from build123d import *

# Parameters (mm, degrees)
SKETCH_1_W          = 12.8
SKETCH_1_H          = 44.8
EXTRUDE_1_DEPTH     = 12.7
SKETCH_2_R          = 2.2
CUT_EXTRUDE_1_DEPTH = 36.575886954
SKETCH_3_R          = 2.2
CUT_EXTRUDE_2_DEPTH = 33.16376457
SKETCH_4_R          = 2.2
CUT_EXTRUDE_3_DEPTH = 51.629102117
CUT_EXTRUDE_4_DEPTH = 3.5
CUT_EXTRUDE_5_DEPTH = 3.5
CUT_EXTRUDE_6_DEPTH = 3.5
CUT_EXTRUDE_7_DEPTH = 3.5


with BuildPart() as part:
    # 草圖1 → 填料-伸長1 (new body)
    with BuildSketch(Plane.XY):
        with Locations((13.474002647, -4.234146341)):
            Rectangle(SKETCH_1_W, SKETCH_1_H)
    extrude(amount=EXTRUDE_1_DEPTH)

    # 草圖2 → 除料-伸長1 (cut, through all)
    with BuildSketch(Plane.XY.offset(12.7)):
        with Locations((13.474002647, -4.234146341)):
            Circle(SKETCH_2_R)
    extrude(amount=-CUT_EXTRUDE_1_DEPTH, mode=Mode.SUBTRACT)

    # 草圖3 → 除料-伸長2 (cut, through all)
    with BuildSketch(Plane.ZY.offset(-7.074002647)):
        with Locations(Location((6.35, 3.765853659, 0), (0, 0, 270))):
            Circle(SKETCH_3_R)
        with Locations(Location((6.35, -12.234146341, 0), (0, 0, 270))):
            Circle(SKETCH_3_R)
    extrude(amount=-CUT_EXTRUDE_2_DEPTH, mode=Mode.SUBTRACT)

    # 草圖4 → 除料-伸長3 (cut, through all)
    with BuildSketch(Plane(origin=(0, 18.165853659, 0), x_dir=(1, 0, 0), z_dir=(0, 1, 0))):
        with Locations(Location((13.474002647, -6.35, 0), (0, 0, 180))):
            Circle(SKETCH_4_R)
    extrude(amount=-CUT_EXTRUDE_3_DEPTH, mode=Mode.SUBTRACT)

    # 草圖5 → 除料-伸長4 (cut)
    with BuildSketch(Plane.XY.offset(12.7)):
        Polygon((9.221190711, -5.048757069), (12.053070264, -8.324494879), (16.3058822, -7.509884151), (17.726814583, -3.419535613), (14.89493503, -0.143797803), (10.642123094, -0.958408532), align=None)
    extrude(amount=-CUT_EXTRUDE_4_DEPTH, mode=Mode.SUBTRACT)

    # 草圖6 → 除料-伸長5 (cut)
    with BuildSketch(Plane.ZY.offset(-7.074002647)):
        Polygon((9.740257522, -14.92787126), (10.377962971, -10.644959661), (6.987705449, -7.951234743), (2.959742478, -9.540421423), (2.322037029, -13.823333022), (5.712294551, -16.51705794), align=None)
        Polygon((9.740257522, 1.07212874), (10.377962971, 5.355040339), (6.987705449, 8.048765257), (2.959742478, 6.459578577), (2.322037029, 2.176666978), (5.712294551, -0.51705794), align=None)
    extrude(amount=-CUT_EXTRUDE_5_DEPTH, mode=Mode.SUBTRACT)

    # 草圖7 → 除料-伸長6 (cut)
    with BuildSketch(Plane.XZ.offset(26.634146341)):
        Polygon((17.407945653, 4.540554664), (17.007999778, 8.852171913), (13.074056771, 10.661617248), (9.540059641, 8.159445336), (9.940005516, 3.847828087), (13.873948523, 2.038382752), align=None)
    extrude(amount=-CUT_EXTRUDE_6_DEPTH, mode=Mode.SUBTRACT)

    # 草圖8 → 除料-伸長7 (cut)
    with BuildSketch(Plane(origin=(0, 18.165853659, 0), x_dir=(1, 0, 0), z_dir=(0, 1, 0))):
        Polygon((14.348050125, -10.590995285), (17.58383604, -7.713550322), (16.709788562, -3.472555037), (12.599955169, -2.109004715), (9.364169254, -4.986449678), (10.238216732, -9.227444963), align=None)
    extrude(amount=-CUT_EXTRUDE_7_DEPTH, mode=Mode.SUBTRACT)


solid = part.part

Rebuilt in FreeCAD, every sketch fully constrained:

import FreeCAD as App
import Part
import Sketcher

V = App.Vector
Q = App.Units.Quantity


def add_polygon(sketch, points):
    """Adds a closed chain of lines whose ends are joined by coincident constraints."""
    first, n = sketch.GeometryCount, len(points)
    for a, b in zip(points, points[1:] + points[:1]):
        sketch.addGeometry(Part.LineSegment(App.Vector(*a, 0), App.Vector(*b, 0)), False)
    for i in range(n):
        sketch.addConstraint(Sketcher.Constraint("Coincident", first + i, 2, first + (i + 1) % n, 1))

doc = App.newDocument("Part")
body = doc.addObject("PartDesign::Body", "Body")

sketch1 = doc.addObject("Sketcher::SketchObject", "Sketch")
body.addObject(sketch1)
sketch1.AttachmentSupport = (doc.XY_Plane, [""])
sketch1.MapMode = "FlatFace"
add_polygon(sketch1, [(7, 18), (7, -27), (20, -27), (20, 18)])
sketch1.addConstraint(Sketcher.Constraint("Vertical", 0))
sketch1.addConstraint(Sketcher.Constraint("Horizontal", 1))
sketch1.addConstraint(Sketcher.Constraint("Vertical", 2))
sketch1.addConstraint(Sketcher.Constraint("Horizontal", 3))
sketch1.addConstraint(Sketcher.Constraint("DistanceX", 1, 1, 1, 2, Q("12.8 mm")))
sketch1.addConstraint(Sketcher.Constraint("DistanceY", 0, 2, 0, 1, Q("44.8 mm")))
sketch1.addConstraint(Sketcher.Constraint("DistanceX", -1, 1, 0, 2, Q("7.074003 mm")))
sketch1.addConstraint(Sketcher.Constraint("DistanceY", 0, 2, -1, 1, Q("26.634146 mm")))
pad1 = doc.addObject("PartDesign::Pad", "Pad")
body.addObject(pad1)
pad1.Profile = sketch1
pad1.Length = 12.7

sketch2 = doc.addObject("Sketcher::SketchObject", "Sketch001")
body.addObject(sketch2)
sketch2.AttachmentSupport = (doc.XY_Plane, [""])
sketch2.MapMode = "FlatFace"
sketch2.AttachmentOffset = App.Placement(V(0, 0, 12.7), App.Rotation())
sketch2.addGeometry(Part.Circle(V(13.5, -4.2, 0), V(0, 0, 1), 2.2), False)
sketch2.addConstraint(Sketcher.Constraint("Diameter", 0, Q("4.4 mm")))
sketch2.addConstraint(Sketcher.Constraint("DistanceX", -1, 1, 0, 3, Q("13.474003 mm")))
sketch2.addConstraint(Sketcher.Constraint("DistanceY", 0, 3, -1, 1, Q("4.234146 mm")))
pocket1 = doc.addObject("PartDesign::Pocket", "Pocket")
body.addObject(pocket1)
pocket1.Profile = sketch2
pocket1.Type = "ThroughAll"

sketch3 = doc.addObject("Sketcher::SketchObject", "Sketch002")
body.addObject(sketch3)
sketch3.AttachmentSupport = (doc.YZ_Plane, [""])
sketch3.MapMode = "FlatFace"
sketch3.AttachmentOffset = App.Placement(V(0, 0, 7.074003), App.Rotation())
sketch3.addGeometry(Part.Circle(V(3.8, 6.3, 0), V(0, 0, 1), 2.2), False)
sketch3.addGeometry(Part.Circle(V(-12.2, 6.3, 0), V(0, 0, 1), 2.2), False)
sketch3.addConstraint(Sketcher.Constraint("Equal", 0, 1))
sketch3.addConstraint(Sketcher.Constraint("Horizontal", 0, 3, 1, 3))
sketch3.addConstraint(Sketcher.Constraint("Diameter", 0, Q("4.4 mm")))
sketch3.addConstraint(Sketcher.Constraint("DistanceX", 1, 3, 0, 3, Q("16 mm")))
sketch3.addConstraint(Sketcher.Constraint("DistanceY", -1, 1, 0, 3, Q("6.35 mm")))
sketch3.addConstraint(Sketcher.Constraint("DistanceX", -1, 1, 0, 3, Q("3.765854 mm")))
pocket2 = doc.addObject("PartDesign::Pocket", "Pocket001")
body.addObject(pocket2)
pocket2.Profile = sketch3
pocket2.Type = "ThroughAll"
pocket2.Reversed = True

sketch4 = doc.addObject("Sketcher::SketchObject", "Sketch003")
body.addObject(sketch4)
sketch4.AttachmentSupport = (doc.XZ_Plane, [""])
sketch4.MapMode = "FlatFace"
sketch4.AttachmentOffset = App.Placement(V(0, 0, -18.165854), App.Rotation())
sketch4.addGeometry(Part.Circle(V(13.5, 6.3, 0), V(0, 0, 1), 2.2), False)
sketch4.addConstraint(Sketcher.Constraint("Diameter", 0, Q("4.4 mm")))
sketch4.addConstraint(Sketcher.Constraint("DistanceY", -1, 1, 0, 3, Q("6.35 mm")))
sketch4.addConstraint(Sketcher.Constraint("DistanceX", -1, 1, 0, 3, Q("13.474003 mm")))
pocket3 = doc.addObject("PartDesign::Pocket", "Pocket002")
body.addObject(pocket3)
pocket3.Profile = sketch4
pocket3.Type = "ThroughAll"
pocket3.Reversed = True

sketch5 = doc.addObject("Sketcher::SketchObject", "Sketch004")
body.addObject(sketch5)
sketch5.AttachmentSupport = (doc.XY_Plane, [""])
sketch5.MapMode = "FlatFace"
sketch5.AttachmentOffset = App.Placement(V(0, 0, 12.7), App.Rotation())
add_polygon(sketch5, [(9.2, -5), (12.1, -8.3), (16.3, -7.5), (17.7, -3.4), (14.9, -0.1), (10.6, -1)])
sketch5.addConstraint(Sketcher.Constraint("Parallel", 0, 3))
sketch5.addConstraint(Sketcher.Constraint("Parallel", 1, 4))
sketch5.addConstraint(Sketcher.Constraint("Parallel", 2, 5))
sketch5.addConstraint(Sketcher.Constraint("Equal", 0, 1))
sketch5.addConstraint(Sketcher.Constraint("Equal", 1, 2))
sketch5.addConstraint(Sketcher.Constraint("Equal", 2, 3))
sketch5.addConstraint(Sketcher.Constraint("DistanceX", -1, 1, 0, 2, Q("12.05307 mm")))
sketch5.addConstraint(Sketcher.Constraint("DistanceY", 4, 2, -1, 1, Q("0.958409 mm")))
sketch5.addConstraint(Sketcher.Constraint("DistanceX", -1, 1, 5, 2, Q("9.221191 mm")))
sketch5.addConstraint(Sketcher.Constraint("DistanceX", 0, 2, 1, 2, Q("4.252812 mm")))
sketch5.addConstraint(Sketcher.Constraint("DistanceY", 0, 2, 1, 2, Q("0.814611 mm")))
sketch5.addConstraint(Sketcher.Constraint("DistanceY", 1, 2, 2, 2, Q("4.090349 mm")))
pocket4 = doc.addObject("PartDesign::Pocket", "Pocket003")
body.addObject(pocket4)
pocket4.Profile = sketch5
pocket4.Length = 3.5

sketch6 = doc.addObject("Sketcher::SketchObject", "Sketch005")
body.addObject(sketch6)
sketch6.AttachmentSupport = (doc.YZ_Plane, [""])
sketch6.MapMode = "FlatFace"
sketch6.AttachmentOffset = App.Placement(V(0, 0, 7.074003), App.Rotation())
add_polygon(sketch6, [(-14.9, 9.7), (-10.6, 10.4), (-8, 7), (-9.5, 3), (-13.8, 2.3), (-16.5, 5.7)])
add_polygon(sketch6, [(1.1, 9.7), (5.4, 10.4), (8, 7), (6.5, 3), (2.2, 2.3), (-0.5, 5.7)])
sketch6.addConstraint(Sketcher.Constraint("Parallel", 0, 3))
sketch6.addConstraint(Sketcher.Constraint("Parallel", 1, 4))
sketch6.addConstraint(Sketcher.Constraint("Parallel", 2, 5))
sketch6.addConstraint(Sketcher.Constraint("Parallel", 3, 6))
sketch6.addConstraint(Sketcher.Constraint("Parallel", 4, 7))
sketch6.addConstraint(Sketcher.Constraint("Parallel", 5, 8))
sketch6.addConstraint(Sketcher.Constraint("Parallel", 6, 9))
sketch6.addConstraint(Sketcher.Constraint("Parallel", 7, 10))
sketch6.addConstraint(Sketcher.Constraint("Parallel", 8, 11))
sketch6.addConstraint(Sketcher.Constraint("Horizontal", 0, 2, 6, 2))
sketch6.addConstraint(Sketcher.Constraint("Horizontal", 1, 2, 7, 2))
sketch6.addConstraint(Sketcher.Constraint("Horizontal", 2, 2, 8, 2))
sketch6.addConstraint(Sketcher.Constraint("Horizontal", 3, 2, 9, 2))
sketch6.addConstraint(Sketcher.Constraint("Horizontal", 4, 2, 10, 2))
sketch6.addConstraint(Sketcher.Constraint("Equal", 0, 1))
sketch6.addConstraint(Sketcher.Constraint("Equal", 1, 2))
sketch6.addConstraint(Sketcher.Constraint("Equal", 2, 3))
sketch6.addConstraint(Sketcher.Constraint("DistanceX", 0, 2, 6, 2, Q("16 mm")))
sketch6.addConstraint(Sketcher.Constraint("DistanceX", 3, 2, 1, 2, Q("5.872098 mm")))
sketch6.addConstraint(Sketcher.Constraint("DistanceX", 0, 2, -1, 1, Q("10.64496 mm")))
sketch6.addConstraint(Sketcher.Constraint("DistanceX", 2, 2, -1, 1, Q("9.540421 mm")))
sketch6.addConstraint(Sketcher.Constraint("DistanceX", 5, 2, -1, 1, Q("14.927871 mm")))
sketch6.addConstraint(Sketcher.Constraint("DistanceY", 2, 2, 0, 2, Q("7.41822 mm")))
sketch6.addConstraint(Sketcher.Constraint("DistanceY", -1, 1, 0, 2, Q("10.377963 mm")))
pocket5 = doc.addObject("PartDesign::Pocket", "Pocket004")
body.addObject(pocket5)
pocket5.Profile = sketch6
pocket5.Length = 3.5
pocket5.Reversed = True

sketch7 = doc.addObject("Sketcher::SketchObject", "Sketch006")
body.addObject(sketch7)
sketch7.AttachmentSupport = (doc.XZ_Plane, [""])
sketch7.MapMode = "FlatFace"
sketch7.AttachmentOffset = App.Placement(V(0, 0, 26.634146), App.Rotation())
add_polygon(sketch7, [(17.4, 4.5), (17, 8.9), (13.1, 10.7), (9.5, 8.2), (9.9, 3.8), (13.9, 2)])
sketch7.addConstraint(Sketcher.Constraint("Parallel", 0, 3))
sketch7.addConstraint(Sketcher.Constraint("Parallel", 1, 4))
sketch7.addConstraint(Sketcher.Constraint("Parallel", 2, 5))
sketch7.addConstraint(Sketcher.Constraint("Equal", 0, 1))
sketch7.addConstraint(Sketcher.Constraint("Equal", 1, 2))
sketch7.addConstraint(Sketcher.Constraint("Equal", 2, 3))
sketch7.addConstraint(Sketcher.Constraint("DistanceX", -1, 1, 0, 2, Q("17.008 mm")))
sketch7.addConstraint(Sketcher.Constraint("DistanceY", -1, 1, 0, 2, Q("8.852172 mm")))
sketch7.addConstraint(Sketcher.Constraint("DistanceX", -1, 1, 2, 2, Q("9.54006 mm")))
sketch7.addConstraint(Sketcher.Constraint("DistanceY", -1, 1, 3, 2, Q("3.847828 mm")))
sketch7.addConstraint(Sketcher.Constraint("DistanceX", -1, 1, 4, 2, Q("13.873949 mm")))
sketch7.addConstraint(Sketcher.Constraint("DistanceY", 2, 2, 1, 2, Q("2.502172 mm")))
pocket6 = doc.addObject("PartDesign::Pocket", "Pocket005")
body.addObject(pocket6)
pocket6.Profile = sketch7
pocket6.Length = 3.5

sketch8 = doc.addObject("Sketcher::SketchObject", "Sketch007")
body.addObject(sketch8)
sketch8.AttachmentSupport = (doc.XZ_Plane, [""])
sketch8.MapMode = "FlatFace"
sketch8.AttachmentOffset = App.Placement(V(0, 0, -18.165854), App.Rotation())
add_polygon(sketch8, [(14.3, 10.6), (17.6, 7.7), (16.7, 3.5), (12.6, 2.1), (9.4, 5), (10.2, 9.2)])
sketch8.addConstraint(Sketcher.Constraint("Parallel", 0, 3))
sketch8.addConstraint(Sketcher.Constraint("Parallel", 1, 4))
sketch8.addConstraint(Sketcher.Constraint("Parallel", 2, 5))
sketch8.addConstraint(Sketcher.Constraint("Equal", 0, 1))
sketch8.addConstraint(Sketcher.Constraint("Equal", 1, 2))
sketch8.addConstraint(Sketcher.Constraint("Equal", 2, 3))
sketch8.addConstraint(Sketcher.Constraint("DistanceY", 3, 2, 0, 2, Q("2.727101 mm")))
sketch8.addConstraint(Sketcher.Constraint("DistanceY", -1, 1, 0, 2, Q("7.71355 mm")))
sketch8.addConstraint(Sketcher.Constraint("DistanceX", -1, 1, 1, 2, Q("16.709789 mm")))
sketch8.addConstraint(Sketcher.Constraint("DistanceX", -1, 1, 3, 2, Q("9.364169 mm")))
sketch8.addConstraint(Sketcher.Constraint("DistanceX", -1, 1, 5, 2, Q("14.34805 mm")))
sketch8.addConstraint(Sketcher.Constraint("DistanceY", 2, 2, 1, 2, Q("1.36355 mm")))
pocket7 = doc.addObject("PartDesign::Pocket", "Pocket006")
body.addObject(pocket7)
pocket7.Profile = sketch8
pocket7.Length = 3.5
pocket7.Reversed = True

doc.recompute()
